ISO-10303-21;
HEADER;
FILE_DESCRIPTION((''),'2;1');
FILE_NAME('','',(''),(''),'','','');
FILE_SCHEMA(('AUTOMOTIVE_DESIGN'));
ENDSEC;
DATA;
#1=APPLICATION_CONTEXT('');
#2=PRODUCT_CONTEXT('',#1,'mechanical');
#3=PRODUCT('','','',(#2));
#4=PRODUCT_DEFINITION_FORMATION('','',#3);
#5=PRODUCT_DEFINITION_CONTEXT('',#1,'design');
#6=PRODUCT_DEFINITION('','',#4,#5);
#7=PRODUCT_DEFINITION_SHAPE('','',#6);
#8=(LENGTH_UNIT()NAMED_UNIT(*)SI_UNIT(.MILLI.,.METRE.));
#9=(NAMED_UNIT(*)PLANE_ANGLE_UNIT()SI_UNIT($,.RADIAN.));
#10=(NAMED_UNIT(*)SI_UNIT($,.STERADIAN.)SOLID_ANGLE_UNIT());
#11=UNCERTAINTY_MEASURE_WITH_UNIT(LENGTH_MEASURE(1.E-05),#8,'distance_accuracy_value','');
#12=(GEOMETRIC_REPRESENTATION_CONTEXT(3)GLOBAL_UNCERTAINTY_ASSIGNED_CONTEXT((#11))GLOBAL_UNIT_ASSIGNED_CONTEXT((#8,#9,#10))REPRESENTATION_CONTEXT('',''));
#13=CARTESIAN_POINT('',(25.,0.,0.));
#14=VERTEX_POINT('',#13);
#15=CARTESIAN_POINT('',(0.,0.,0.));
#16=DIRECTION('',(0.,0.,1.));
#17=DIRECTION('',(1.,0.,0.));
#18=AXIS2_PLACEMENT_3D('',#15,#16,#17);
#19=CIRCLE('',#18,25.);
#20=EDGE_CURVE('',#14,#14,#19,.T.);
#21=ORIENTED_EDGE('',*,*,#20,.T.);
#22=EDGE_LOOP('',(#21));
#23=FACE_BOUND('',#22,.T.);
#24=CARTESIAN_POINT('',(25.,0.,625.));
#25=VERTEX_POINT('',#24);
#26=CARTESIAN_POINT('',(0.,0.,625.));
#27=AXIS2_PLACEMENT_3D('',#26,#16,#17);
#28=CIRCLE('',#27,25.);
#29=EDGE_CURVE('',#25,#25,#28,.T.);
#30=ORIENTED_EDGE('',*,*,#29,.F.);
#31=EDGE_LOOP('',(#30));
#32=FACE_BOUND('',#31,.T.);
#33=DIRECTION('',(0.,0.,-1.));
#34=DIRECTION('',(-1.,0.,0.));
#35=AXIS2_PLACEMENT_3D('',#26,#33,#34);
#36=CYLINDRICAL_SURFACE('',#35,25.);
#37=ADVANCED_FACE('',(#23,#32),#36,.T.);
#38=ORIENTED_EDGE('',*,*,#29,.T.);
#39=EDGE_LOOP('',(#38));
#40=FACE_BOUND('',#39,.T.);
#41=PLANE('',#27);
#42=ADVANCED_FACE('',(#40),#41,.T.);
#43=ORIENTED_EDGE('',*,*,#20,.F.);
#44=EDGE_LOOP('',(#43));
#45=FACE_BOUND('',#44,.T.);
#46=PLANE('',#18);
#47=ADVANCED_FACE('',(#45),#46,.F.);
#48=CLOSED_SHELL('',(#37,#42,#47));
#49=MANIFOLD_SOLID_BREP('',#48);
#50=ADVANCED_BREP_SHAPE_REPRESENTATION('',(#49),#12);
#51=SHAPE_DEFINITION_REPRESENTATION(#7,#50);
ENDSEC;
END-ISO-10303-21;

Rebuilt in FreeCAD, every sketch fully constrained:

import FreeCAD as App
import Part
import Sketcher
from FreeCAD import Vector
Q = App.Units.Quantity

doc = App.newDocument("Part")
body = doc.addObject("PartDesign::Body", "Body")

# Sketch on XY plane
sketch1 = body.newObject("Sketcher::SketchObject", "Sketch")
sketch1.AttachmentSupport = (doc.getObject("XY_Plane"), [""])
sketch1.MapMode = "FlatFace"
sketch1.addGeometry(Part.Circle(Vector(0, 0, 0), Vector(0, 0, 1), 25), False)
sketch1.addConstraint(Sketcher.Constraint("Coincident", 0, 3, -1, 1))
sketch1.addConstraint(Sketcher.Constraint("Diameter", 0, Q("50 mm")))
pad1 = body.newObject("PartDesign::Pad", "Pad")
pad1.Profile = sketch1
pad1.Length = 625

doc.recompute()
